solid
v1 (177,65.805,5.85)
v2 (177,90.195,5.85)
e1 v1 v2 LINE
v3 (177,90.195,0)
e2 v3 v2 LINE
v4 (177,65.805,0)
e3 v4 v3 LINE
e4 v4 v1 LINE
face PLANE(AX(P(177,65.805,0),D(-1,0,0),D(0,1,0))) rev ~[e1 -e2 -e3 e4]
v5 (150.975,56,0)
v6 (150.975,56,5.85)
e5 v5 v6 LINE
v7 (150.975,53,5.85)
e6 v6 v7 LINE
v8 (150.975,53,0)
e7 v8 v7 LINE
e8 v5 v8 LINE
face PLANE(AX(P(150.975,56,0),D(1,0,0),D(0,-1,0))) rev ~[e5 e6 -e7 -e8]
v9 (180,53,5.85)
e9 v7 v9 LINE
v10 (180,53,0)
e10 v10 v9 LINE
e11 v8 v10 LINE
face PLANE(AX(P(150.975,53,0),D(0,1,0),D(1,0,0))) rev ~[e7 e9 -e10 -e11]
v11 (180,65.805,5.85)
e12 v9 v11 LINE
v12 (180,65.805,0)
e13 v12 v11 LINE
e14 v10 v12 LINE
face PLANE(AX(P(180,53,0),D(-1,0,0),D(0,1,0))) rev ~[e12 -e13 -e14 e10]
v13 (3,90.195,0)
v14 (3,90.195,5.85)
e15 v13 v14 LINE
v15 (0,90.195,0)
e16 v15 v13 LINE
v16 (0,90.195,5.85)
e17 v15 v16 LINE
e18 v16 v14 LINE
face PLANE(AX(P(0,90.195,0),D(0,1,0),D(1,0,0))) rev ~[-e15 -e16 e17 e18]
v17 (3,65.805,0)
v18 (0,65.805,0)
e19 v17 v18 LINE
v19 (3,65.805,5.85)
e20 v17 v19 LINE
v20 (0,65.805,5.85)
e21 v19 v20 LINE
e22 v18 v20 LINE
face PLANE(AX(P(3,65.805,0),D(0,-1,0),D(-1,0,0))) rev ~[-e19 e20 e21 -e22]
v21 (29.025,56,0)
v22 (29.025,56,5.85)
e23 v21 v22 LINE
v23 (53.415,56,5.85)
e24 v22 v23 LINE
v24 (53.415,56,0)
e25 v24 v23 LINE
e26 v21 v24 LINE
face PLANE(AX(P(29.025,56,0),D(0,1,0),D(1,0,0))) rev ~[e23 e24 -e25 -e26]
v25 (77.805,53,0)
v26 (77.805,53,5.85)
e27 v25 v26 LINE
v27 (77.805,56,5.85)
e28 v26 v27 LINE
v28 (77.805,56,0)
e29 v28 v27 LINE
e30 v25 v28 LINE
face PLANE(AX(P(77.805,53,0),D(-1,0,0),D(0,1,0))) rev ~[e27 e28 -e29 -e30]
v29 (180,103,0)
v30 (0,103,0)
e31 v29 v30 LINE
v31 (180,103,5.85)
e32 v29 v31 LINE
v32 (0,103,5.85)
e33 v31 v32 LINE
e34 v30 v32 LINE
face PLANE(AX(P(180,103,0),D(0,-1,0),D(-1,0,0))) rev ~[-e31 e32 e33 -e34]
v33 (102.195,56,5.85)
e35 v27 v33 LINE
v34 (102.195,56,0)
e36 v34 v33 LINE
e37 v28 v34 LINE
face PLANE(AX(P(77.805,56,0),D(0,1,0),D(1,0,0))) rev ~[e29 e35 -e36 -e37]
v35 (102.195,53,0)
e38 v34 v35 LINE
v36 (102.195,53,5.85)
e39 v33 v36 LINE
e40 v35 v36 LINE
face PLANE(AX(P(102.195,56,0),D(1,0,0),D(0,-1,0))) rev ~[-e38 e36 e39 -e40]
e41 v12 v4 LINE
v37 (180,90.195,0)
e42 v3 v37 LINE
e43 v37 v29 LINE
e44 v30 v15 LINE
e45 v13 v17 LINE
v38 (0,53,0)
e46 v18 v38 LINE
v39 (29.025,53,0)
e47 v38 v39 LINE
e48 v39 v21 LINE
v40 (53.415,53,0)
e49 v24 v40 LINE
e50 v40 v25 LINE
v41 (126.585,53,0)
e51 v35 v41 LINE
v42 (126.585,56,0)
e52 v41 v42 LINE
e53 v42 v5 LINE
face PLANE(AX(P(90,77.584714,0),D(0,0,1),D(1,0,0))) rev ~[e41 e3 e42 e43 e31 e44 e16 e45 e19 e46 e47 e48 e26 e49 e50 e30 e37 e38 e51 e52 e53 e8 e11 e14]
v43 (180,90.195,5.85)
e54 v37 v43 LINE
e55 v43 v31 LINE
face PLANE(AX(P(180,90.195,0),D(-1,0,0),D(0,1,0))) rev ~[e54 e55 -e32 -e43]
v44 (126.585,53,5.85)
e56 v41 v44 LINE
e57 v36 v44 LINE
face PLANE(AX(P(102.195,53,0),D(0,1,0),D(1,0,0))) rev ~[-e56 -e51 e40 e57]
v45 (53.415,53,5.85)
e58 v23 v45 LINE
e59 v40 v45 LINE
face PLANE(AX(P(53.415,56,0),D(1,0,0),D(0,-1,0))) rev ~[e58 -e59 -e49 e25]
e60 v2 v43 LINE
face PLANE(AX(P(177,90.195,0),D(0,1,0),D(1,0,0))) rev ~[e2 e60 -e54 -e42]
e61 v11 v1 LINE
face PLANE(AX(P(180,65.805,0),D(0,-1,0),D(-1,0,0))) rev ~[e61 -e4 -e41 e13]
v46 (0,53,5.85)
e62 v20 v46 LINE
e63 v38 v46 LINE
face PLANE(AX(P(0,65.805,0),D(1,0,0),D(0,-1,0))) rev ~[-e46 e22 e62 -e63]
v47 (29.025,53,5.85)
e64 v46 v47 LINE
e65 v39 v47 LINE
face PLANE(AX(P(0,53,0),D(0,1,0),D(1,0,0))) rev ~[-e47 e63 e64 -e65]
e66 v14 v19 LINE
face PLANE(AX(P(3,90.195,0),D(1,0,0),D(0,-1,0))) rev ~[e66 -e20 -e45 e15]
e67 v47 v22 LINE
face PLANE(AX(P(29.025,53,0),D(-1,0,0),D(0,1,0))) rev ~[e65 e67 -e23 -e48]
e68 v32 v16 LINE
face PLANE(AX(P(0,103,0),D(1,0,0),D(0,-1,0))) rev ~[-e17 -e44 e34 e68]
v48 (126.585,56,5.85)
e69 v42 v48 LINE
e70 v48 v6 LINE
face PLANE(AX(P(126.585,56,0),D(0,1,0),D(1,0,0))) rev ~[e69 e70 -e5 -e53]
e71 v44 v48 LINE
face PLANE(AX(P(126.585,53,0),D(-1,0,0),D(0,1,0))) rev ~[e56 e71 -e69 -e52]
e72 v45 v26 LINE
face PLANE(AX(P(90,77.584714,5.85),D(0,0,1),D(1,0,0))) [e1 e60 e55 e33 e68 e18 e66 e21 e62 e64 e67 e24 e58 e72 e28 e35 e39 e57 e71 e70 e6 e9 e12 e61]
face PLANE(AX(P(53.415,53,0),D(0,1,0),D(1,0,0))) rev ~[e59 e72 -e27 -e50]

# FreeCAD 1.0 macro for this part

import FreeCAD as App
import Part
import Sketcher

doc = App.newDocument("Part")
body = doc.addObject("PartDesign::Body", "Body")

sketch1 = doc.addObject("Sketcher::SketchObject", "Sketch")
body.addObject(sketch1)
sketch1.AttachmentSupport = (doc.XY_Plane, [""])
sketch1.MapMode = "FlatFace"
sketch1.addGeometry([
    Part.LineSegment(App.Vector(0, 103, 0), App.Vector(0, 90.195, 0)),
    Part.LineSegment(App.Vector(0, 90.195, 0), App.Vector(3, 90.195, 0)),
    Part.LineSegment(App.Vector(3, 90.195, 0), App.Vector(3, 65.805, 0)),
    Part.LineSegment(App.Vector(3, 65.805, 0), App.Vector(0, 65.805, 0)),
    Part.LineSegment(App.Vector(0, 65.805, 0), App.Vector(0, 53, 0)),
    Part.LineSegment(App.Vector(0, 53, 0), App.Vector(29.025, 53, 0)),
    Part.LineSegment(App.Vector(29.025, 53, 0), App.Vector(29.025, 56, 0)),
    Part.LineSegment(App.Vector(29.025, 56, 0), App.Vector(53.415, 56, 0)),
    Part.LineSegment(App.Vector(53.415, 56, 0), App.Vector(53.415, 53, 0)),
    Part.LineSegment(App.Vector(53.415, 53, 0), App.Vector(77.805, 53, 0)),
    Part.LineSegment(App.Vector(77.805, 53, 0), App.Vector(77.805, 56, 0)),
    Part.LineSegment(App.Vector(77.805, 56, 0), App.Vector(102.195, 56, 0)),
    Part.LineSegment(App.Vector(102.195, 56, 0), App.Vector(102.195, 53, 0)),
    Part.LineSegment(App.Vector(102.195, 53, 0), App.Vector(126.585, 53, 0)),
    Part.LineSegment(App.Vector(126.585, 53, 0), App.Vector(126.585, 56, 0)),
    Part.LineSegment(App.Vector(126.585, 56, 0), App.Vector(150.975, 56, 0)),
    Part.LineSegment(App.Vector(150.975, 56, 0), App.Vector(150.975, 53, 0)),
    Part.LineSegment(App.Vector(150.975, 53, 0), App.Vector(180, 53, 0)),
    Part.LineSegment(App.Vector(180, 53, 0), App.Vector(180, 65.805, 0)),
    Part.LineSegment(App.Vector(180, 65.805, 0), App.Vector(177, 65.805, 0)),
    Part.LineSegment(App.Vector(177, 65.805, 0), App.Vector(177, 90.195, 0)),
    Part.LineSegment(App.Vector(177, 90.195, 0), App.Vector(180, 90.195, 0)),
    Part.LineSegment(App.Vector(180, 90.195, 0), App.Vector(180, 103, 0)),
    Part.LineSegment(App.Vector(180, 103, 0), App.Vector(0, 103, 0)),
], False)
sketch1.addConstraint([
    Sketcher.Constraint("Coincident", 0, 2, 1, 1),
    Sketcher.Constraint("Coincident", 1, 2, 2, 1),
    Sketcher.Constraint("Coincident", 2, 2, 3, 1),
    Sketcher.Constraint("Coincident", 3, 2, 4, 1),
    Sketcher.Constraint("Coincident", 4, 2, 5, 1),
    Sketcher.Constraint("Coincident", 5, 2, 6, 1),
    Sketcher.Constraint("Coincident", 6, 2, 7, 1),
    Sketcher.Constraint("Coincident", 7, 2, 8, 1),
    Sketcher.Constraint("Coincident", 8, 2, 9, 1),
    Sketcher.Constraint("Coincident", 9, 2, 10, 1),
    Sketcher.Constraint("Coincident", 10, 2, 11, 1),
    Sketcher.Constraint("Coincident", 11, 2, 12, 1),
    Sketcher.Constraint("Coincident", 12, 2, 13, 1),
    Sketcher.Constraint("Coincident", 13, 2, 14, 1),
    Sketcher.Constraint("Coincident", 14, 2, 15, 1),
    Sketcher.Constraint("Coincident", 15, 2, 16, 1),
    Sketcher.Constraint("Coincident", 16, 2, 17, 1),
    Sketcher.Constraint("Coincident", 17, 2, 18, 1),
    Sketcher.Constraint("Coincident", 18, 2, 19, 1),
    Sketcher.Constraint("Coincident", 19, 2, 20, 1),
    Sketcher.Constraint("Coincident", 20, 2, 21, 1),
    Sketcher.Constraint("Coincident", 21, 2, 22, 1),
    Sketcher.Constraint("Coincident", 22, 2, 23, 1),
    Sketcher.Constraint("Coincident", 23, 2, 0, 1),
    Sketcher.Constraint("Vertical", 0),
    Sketcher.Constraint("Horizontal", 1),
    Sketcher.Constraint("Vertical", 2),
    Sketcher.Constraint("Horizontal", 3),
    Sketcher.Constraint("Vertical", 4),
    Sketcher.Constraint("Horizontal", 5),
    Sketcher.Constraint("Vertical", 6),
    Sketcher.Constraint("Horizontal", 7),
    Sketcher.Constraint("Vertical", 8),
    Sketcher.Constraint("Horizontal", 9),
    Sketcher.Constraint("Vertical", 10),
    Sketcher.Constraint("Horizontal", 11),
    Sketcher.Constraint("Vertical", 12),
    Sketcher.Constraint("Horizontal", 13),
    Sketcher.Constraint("Vertical", 14),
    Sketcher.Constraint("Horizontal", 15),
    Sketcher.Constraint("Vertical", 16),
    Sketcher.Constraint("Horizontal", 17),
    Sketcher.Constraint("Vertical", 18),
    Sketcher.Constraint("Horizontal", 19),
    Sketcher.Constraint("Vertical", 20),
    Sketcher.Constraint("Horizontal", 21),
    Sketcher.Constraint("Vertical", 22),
    Sketcher.Constraint("Horizontal", 23),
    Sketcher.Constraint("PointOnObject", 0, 2, -2),
    Sketcher.Constraint("PointOnObject", 3, 2, -2),
    Sketcher.Constraint("Horizontal", 5, 2, 8, 2),
    Sketcher.Constraint("Horizontal", 7, 2, 10, 2),
    Sketcher.Constraint("Horizontal", 9, 2, 12, 2),
    Sketcher.Constraint("Horizontal", 11, 2, 14, 2),
    Sketcher.Constraint("Horizontal", 13, 2, 16, 2),
    Sketcher.Constraint("Horizontal", 3, 2, 18, 2),
    Sketcher.Constraint("Horizontal", 1, 2, 20, 2),
    Sketcher.Constraint("Vertical", 18, 2, 21, 2),
    Sketcher.Constraint("Equal", 7, 9),
    Sketcher.Constraint("Equal", 9, 11),
    Sketcher.Constraint("Equal", 11, 13),
    Sketcher.Constraint("Equal", 13, 15),
    Sketcher.Constraint("Equal", 5, 17),
    Sketcher.Constraint("Equal", 3, 19),
    Sketcher.Constraint("Equal", 15, 2),
    Sketcher.Constraint("Equal", 0, 4),
    Sketcher.Constraint("Equal", 21, 6),
    Sketcher.Constraint("DistanceX", 1, 1, 1, 2, 3.0),
    Sketcher.Constraint("DistanceX", 23, 2, 23, 1, 180.0),
    Sketcher.Constraint("DistanceY", -1, 1, 4, 2, 53.0),
    Sketcher.Constraint("DistanceY", -1, 1, 22, 2, 103.0),
    Sketcher.Constraint("DistanceX", 7, 1, 7, 2, 24.39),
])
pad1 = doc.addObject("PartDesign::Pad", "Pad")
body.addObject(pad1)
pad1.Profile = sketch1
pad1.Length = 5.85

doc.recompute()
